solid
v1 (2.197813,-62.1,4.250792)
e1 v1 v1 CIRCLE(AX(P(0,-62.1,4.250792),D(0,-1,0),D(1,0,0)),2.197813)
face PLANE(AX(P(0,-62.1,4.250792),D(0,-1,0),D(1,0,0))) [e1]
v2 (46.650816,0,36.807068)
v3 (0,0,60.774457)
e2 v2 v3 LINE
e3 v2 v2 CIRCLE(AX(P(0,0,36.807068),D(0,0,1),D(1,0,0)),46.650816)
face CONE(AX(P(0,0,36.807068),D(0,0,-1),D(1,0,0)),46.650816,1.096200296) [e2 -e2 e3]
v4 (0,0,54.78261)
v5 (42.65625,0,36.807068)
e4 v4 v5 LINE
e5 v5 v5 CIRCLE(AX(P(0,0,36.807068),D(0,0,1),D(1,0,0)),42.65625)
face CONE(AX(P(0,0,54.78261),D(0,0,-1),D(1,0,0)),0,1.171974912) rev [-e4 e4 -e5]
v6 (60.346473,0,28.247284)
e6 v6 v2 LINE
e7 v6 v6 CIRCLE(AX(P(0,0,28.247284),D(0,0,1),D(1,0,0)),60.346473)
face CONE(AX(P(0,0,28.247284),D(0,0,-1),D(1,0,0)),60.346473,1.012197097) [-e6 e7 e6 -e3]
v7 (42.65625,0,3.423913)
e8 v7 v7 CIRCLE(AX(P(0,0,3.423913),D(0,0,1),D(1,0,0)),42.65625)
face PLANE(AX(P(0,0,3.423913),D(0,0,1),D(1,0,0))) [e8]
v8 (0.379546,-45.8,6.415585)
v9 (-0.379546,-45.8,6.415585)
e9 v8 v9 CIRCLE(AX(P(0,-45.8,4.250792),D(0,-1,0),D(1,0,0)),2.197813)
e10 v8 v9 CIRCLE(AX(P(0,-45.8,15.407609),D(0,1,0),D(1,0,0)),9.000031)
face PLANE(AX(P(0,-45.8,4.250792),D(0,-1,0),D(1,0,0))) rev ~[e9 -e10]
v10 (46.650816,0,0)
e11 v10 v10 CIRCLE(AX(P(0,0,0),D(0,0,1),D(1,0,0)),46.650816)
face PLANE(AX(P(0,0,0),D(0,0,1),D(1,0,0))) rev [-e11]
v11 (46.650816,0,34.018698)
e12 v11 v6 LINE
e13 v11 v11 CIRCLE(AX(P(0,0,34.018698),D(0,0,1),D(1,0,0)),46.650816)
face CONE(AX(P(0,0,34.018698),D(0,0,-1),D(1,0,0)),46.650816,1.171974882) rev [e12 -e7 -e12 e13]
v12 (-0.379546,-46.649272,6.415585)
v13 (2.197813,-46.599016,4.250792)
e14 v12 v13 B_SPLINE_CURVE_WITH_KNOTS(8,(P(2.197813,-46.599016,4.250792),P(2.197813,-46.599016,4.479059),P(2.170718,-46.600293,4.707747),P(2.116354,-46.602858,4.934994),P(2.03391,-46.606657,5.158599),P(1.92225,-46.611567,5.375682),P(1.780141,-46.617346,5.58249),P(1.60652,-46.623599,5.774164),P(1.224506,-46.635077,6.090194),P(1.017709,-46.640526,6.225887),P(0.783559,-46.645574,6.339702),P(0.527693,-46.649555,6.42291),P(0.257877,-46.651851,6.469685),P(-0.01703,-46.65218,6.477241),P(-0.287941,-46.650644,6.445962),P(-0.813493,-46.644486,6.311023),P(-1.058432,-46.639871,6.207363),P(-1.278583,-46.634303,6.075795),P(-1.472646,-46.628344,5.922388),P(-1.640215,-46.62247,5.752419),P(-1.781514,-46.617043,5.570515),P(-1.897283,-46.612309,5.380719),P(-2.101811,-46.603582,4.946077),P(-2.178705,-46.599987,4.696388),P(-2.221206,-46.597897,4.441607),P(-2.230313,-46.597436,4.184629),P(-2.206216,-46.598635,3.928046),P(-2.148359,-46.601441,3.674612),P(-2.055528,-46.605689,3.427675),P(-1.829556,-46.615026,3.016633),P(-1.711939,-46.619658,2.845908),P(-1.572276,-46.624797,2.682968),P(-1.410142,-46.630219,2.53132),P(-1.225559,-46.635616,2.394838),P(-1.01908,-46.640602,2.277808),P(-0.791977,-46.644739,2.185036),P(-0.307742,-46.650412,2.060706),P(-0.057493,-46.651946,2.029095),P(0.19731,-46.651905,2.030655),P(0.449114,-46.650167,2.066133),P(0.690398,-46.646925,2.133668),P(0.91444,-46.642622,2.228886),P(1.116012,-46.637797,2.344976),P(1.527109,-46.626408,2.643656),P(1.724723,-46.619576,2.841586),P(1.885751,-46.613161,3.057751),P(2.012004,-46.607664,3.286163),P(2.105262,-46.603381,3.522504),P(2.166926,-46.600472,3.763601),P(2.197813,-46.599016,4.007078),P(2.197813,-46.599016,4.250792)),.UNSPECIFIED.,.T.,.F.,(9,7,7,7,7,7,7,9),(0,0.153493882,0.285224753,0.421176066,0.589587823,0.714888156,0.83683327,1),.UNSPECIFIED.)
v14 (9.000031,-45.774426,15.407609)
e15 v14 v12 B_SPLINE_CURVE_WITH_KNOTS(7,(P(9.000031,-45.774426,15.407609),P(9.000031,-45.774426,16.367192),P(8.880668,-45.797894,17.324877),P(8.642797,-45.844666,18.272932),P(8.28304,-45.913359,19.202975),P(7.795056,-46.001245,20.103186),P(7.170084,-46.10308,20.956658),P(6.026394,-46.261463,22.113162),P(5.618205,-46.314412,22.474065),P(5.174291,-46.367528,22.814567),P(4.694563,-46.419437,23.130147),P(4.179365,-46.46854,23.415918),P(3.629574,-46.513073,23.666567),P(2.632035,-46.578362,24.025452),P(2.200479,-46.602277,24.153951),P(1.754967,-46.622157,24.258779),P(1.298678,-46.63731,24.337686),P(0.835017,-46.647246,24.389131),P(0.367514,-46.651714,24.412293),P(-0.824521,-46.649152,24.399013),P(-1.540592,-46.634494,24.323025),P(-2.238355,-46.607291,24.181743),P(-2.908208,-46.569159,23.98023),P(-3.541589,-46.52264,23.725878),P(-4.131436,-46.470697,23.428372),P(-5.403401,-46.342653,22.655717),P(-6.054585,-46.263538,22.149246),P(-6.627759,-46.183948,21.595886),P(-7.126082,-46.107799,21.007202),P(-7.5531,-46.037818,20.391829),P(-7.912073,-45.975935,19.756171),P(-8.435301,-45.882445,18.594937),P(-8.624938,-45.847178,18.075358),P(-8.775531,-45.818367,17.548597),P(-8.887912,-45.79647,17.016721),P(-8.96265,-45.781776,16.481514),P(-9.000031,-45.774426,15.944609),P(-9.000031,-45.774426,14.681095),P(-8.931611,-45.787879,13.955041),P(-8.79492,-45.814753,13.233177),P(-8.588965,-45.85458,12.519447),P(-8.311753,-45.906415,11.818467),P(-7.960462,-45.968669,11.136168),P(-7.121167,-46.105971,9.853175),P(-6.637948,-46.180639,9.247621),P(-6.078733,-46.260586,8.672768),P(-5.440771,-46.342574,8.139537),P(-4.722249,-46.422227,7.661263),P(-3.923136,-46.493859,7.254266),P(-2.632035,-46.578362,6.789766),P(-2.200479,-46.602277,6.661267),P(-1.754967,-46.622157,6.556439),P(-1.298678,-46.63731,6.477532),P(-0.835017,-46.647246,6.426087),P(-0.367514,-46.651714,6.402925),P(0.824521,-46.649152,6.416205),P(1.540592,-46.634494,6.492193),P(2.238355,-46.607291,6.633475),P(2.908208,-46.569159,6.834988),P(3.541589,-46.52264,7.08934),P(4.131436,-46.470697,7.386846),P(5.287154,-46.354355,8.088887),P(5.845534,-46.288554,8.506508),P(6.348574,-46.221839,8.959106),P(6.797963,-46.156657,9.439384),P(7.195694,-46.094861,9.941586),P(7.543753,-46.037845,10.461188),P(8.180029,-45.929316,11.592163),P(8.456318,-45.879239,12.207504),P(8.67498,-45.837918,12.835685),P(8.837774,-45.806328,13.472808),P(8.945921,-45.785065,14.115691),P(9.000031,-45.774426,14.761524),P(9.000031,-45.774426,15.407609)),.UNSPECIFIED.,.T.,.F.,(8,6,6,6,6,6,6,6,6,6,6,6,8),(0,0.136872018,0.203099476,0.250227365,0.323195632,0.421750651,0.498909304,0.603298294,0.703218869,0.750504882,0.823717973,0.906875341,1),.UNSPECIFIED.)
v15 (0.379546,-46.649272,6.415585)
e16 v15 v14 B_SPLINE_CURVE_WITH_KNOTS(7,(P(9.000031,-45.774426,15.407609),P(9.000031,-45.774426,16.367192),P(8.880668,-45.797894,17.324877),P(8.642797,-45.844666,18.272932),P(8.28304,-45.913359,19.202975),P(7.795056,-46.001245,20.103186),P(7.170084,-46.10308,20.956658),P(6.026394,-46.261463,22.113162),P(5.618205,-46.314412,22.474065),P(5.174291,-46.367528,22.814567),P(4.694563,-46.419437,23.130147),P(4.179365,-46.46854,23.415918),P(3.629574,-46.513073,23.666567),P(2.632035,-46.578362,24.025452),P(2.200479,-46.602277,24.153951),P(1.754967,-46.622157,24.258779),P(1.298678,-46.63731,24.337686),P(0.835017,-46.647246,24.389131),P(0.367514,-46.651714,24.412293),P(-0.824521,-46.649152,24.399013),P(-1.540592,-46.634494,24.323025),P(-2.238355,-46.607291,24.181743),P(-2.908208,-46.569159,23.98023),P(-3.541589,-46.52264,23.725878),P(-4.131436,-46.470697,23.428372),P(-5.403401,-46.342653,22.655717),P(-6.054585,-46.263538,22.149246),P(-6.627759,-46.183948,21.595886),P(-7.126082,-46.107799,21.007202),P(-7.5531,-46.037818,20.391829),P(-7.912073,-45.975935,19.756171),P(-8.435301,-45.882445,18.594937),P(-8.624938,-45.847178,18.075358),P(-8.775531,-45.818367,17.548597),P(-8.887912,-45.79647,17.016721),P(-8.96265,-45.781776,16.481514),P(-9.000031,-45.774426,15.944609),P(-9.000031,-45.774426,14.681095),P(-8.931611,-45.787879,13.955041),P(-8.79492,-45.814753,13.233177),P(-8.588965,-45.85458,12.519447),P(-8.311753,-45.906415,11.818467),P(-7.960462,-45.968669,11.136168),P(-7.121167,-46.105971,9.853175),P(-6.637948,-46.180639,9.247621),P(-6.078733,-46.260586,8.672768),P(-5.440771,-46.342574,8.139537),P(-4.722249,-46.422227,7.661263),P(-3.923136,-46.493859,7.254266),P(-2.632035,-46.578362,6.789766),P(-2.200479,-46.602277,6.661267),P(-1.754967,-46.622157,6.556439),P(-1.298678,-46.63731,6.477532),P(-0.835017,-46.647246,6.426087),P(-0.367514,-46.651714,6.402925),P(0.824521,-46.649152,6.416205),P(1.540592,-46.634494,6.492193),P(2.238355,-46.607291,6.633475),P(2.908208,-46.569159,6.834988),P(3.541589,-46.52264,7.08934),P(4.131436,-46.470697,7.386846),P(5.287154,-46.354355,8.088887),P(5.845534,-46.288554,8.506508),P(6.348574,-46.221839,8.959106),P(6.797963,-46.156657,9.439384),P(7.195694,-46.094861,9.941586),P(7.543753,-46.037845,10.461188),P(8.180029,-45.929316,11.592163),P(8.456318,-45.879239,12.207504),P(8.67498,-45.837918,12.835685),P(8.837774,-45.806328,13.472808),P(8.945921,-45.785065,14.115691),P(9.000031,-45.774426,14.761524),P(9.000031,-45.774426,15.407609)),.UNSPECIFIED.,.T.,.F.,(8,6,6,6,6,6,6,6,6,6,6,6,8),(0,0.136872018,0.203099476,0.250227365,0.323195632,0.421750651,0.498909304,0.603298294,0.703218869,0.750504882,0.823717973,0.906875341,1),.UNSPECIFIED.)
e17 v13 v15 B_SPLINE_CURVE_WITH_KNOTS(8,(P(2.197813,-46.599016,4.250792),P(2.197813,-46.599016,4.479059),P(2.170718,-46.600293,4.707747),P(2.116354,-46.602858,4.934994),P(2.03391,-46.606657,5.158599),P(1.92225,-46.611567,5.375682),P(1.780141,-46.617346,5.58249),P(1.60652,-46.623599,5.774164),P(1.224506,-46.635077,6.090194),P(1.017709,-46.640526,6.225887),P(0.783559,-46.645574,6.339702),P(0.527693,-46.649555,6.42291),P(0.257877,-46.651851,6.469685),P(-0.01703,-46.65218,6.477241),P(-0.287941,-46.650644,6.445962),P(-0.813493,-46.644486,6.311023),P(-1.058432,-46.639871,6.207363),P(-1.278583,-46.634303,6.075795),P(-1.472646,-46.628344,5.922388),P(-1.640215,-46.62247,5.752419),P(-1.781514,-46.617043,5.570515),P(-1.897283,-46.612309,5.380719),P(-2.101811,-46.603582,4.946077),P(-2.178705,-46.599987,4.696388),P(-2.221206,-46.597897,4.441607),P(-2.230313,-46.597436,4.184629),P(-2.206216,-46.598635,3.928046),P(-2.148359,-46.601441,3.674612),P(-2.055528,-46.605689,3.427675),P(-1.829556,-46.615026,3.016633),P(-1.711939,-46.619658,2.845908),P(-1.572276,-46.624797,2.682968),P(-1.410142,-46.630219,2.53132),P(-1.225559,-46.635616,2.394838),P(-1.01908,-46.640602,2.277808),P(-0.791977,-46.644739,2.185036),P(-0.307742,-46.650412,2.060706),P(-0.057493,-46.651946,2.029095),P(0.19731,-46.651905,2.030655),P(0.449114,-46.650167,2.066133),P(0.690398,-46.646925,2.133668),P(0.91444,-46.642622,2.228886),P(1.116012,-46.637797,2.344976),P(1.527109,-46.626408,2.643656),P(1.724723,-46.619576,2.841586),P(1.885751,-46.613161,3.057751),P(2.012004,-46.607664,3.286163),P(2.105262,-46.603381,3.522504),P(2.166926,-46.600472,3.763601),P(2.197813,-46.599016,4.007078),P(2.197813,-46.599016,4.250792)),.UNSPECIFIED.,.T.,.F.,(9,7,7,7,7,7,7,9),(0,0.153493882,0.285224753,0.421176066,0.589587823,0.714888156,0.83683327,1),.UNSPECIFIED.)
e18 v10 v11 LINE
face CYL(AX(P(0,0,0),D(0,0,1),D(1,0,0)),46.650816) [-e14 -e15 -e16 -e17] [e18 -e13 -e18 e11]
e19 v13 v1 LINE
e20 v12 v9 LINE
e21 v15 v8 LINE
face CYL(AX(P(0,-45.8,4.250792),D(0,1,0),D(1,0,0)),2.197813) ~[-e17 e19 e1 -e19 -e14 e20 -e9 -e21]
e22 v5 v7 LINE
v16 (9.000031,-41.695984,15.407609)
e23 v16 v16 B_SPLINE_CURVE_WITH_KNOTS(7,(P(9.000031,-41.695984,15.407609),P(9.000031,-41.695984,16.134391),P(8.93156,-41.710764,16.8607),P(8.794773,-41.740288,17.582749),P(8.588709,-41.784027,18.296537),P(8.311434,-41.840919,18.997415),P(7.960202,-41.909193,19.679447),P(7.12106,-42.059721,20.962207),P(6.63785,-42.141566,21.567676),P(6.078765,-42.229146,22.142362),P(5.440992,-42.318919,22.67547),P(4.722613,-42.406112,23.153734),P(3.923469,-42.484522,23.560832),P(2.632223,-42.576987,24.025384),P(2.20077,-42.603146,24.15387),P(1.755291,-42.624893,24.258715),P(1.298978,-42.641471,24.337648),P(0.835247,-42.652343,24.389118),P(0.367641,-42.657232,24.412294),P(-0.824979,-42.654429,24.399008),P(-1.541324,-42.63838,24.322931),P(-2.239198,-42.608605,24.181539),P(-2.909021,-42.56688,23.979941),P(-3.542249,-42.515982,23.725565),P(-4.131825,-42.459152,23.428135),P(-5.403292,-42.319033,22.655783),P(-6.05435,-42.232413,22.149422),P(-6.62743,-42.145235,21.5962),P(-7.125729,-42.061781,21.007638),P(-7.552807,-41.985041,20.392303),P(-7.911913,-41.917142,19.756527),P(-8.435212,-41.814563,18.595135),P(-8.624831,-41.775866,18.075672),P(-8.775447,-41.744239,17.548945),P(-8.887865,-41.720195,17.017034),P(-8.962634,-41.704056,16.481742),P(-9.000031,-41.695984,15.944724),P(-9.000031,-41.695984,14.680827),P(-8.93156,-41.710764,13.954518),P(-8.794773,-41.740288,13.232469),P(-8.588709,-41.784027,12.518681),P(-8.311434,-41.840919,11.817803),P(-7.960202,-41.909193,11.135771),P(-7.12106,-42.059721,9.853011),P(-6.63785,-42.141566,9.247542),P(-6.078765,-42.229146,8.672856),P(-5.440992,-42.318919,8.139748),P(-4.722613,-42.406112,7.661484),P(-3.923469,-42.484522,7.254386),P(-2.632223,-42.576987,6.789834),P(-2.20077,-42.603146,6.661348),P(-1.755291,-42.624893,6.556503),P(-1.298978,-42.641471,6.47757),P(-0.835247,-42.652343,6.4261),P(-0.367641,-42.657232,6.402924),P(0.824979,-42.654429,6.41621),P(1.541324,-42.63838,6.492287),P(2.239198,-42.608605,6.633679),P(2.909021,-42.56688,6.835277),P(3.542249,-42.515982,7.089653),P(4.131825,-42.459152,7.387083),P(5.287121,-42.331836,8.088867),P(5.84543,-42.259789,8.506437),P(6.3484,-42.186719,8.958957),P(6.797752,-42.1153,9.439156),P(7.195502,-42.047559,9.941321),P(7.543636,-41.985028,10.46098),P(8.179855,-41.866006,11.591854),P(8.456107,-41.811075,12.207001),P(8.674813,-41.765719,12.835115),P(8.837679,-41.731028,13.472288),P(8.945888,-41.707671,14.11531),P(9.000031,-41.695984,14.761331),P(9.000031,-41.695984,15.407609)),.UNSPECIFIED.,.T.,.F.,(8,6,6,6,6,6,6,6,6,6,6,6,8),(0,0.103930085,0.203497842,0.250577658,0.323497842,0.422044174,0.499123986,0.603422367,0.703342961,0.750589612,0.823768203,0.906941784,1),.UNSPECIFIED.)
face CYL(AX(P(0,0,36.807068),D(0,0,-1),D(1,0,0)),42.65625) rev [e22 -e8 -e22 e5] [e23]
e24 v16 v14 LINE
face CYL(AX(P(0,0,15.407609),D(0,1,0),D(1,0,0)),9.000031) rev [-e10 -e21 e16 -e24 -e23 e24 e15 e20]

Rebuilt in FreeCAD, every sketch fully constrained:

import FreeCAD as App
import Part
import Sketcher

V = App.Vector


def add_polygon(sketch, points):
    """Adds a closed chain of lines whose ends are joined by coincident constraints."""
    first, n = sketch.GeometryCount, len(points)
    for a, b in zip(points, points[1:] + points[:1]):
        sketch.addGeometry(Part.LineSegment(App.Vector(*a, 0), App.Vector(*b, 0)), False)
    for i in range(n):
        sketch.addConstraint(Sketcher.Constraint("Coincident", first + i, 2, first + (i + 1) % n, 1))

doc = App.newDocument("Part")
body = doc.addObject("PartDesign::Body", "Body")

# Sketch on XZ plane
sketch1 = body.newObject("Sketcher::SketchObject", "Sketch")
sketch1.AttachmentSupport = (doc.getObject("XZ_Plane"), [""])
sketch1.MapMode = "FlatFace"
add_polygon(sketch1, [(0, 3.4), (0, 0), (46.7, 0), (46.7, 34), (60.3, 28.2), (46.7, 36.8), (0, 60.8), (0, 54.8), (42.7, 36.8), (42.7, 3.4)])  # lines 0-9
sketch1.addConstraint([
    Sketcher.Constraint("Vertical", 0),
    Sketcher.Constraint("Horizontal", 1),
    Sketcher.Constraint("Vertical", 2),
    Sketcher.Constraint("Vertical", 6),
    Sketcher.Constraint("Vertical", 8),
    Sketcher.Constraint("Horizontal", 9),
    Sketcher.Constraint("Coincident", 0, 2, -1, 1),
    Sketcher.Constraint("PointOnObject", 5, 2, -2),
    Sketcher.Constraint("Parallel", 3, 7),
    Sketcher.Constraint("Horizontal", 4, 2, 7, 2),
    Sketcher.Constraint("Vertical", 2, 2, 4, 2),
    Sketcher.Constraint("DistanceX", 9, 2, 9, 1, 42.65625),
    Sketcher.Constraint("Distance", 3, 14.86204),
    Sketcher.Constraint("Distance", 4, 16.15057),
    Sketcher.Constraint("DistanceX", 1, 1, 1, 2, 46.650816),
    Sketcher.Constraint("DistanceY", 0, 2, 0, 1, 3.423913),
    Sketcher.Constraint("DistanceY", 2, 1, 2, 2, 34.018698),
    Sketcher.Constraint("DistanceY", 6, 2, 6, 1, 5.991847),
    Sketcher.Constraint("DistanceY", 8, 2, 8, 1, 33.383155),
])
revolution = body.newObject("PartDesign::Revolution", "Revolution")
revolution.Profile = sketch1
revolution.ReferenceAxis = (sketch1, ["V_Axis"])
revolution.Angle = 360

# Sketch on XZ plane
sketch2 = body.newObject("Sketcher::SketchObject", "Sketch001")
sketch2.AttachmentSupport = (doc.getObject("XZ_Plane"), [""])
sketch2.MapMode = "FlatFace"
sketch2.addGeometry(Part.Circle(V(0, 15, 0), V(0, 0, 1), 9), False)
sketch2.addConstraint([
    Sketcher.Constraint("PointOnObject", 0, 3, -2),
    Sketcher.Constraint("Diameter", 0, 18.000062),
    Sketcher.Constraint("DistanceY", -1, 1, 0, 3, 15.407609),
])
pocket1 = body.newObject("PartDesign::Pocket", "Pocket")
pocket1.Profile = sketch2
pocket1.Length = 67.8
pocket1.Reversed = True

# Sketch on XZ plane
sketch3 = body.newObject("Sketcher::SketchObject", "Sketch002")
sketch3.AttachmentSupport = (doc.getObject("XZ_Plane"), [""])
sketch3.MapMode = "FlatFace"
sketch3.AttachmentOffset = App.Placement(V(0, 0, 45.8), App.Rotation())
sketch3.addGeometry(Part.Circle(V(0, 4.3, 0), V(0, 0, 1), 2.2), False)
sketch3.addConstraint([
    Sketcher.Constraint("PointOnObject", 0, 3, -2),
    Sketcher.Constraint("Diameter", 0, 4.395626),
    Sketcher.Constraint("DistanceY", -1, 1, 0, 3, 4.250792),
])
pad1 = body.newObject("PartDesign::Pad", "Pad")
pad1.Profile = sketch3
pad1.Length = 16.3

doc.recompute()
